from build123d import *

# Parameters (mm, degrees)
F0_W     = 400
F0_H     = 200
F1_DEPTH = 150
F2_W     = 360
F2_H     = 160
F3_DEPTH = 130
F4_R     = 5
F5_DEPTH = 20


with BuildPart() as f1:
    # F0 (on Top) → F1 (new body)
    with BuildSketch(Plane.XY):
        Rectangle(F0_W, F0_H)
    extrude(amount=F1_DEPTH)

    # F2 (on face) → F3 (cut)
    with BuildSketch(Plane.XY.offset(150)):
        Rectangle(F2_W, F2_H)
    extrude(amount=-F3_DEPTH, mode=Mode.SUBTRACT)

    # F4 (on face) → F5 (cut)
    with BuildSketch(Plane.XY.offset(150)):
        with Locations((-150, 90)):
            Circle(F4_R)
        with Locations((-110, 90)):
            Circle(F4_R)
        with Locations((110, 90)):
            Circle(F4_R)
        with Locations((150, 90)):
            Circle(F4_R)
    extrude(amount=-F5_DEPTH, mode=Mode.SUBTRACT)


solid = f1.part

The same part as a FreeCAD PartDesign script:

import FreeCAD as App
import Part
import Sketcher

V = App.Vector


def add_polygon(sketch, points):
    """Adds a closed chain of lines whose ends are joined by coincident constraints."""
    first, n = sketch.GeometryCount, len(points)
    for a, b in zip(points, points[1:] + points[:1]):
        sketch.addGeometry(Part.LineSegment(App.Vector(*a, 0), App.Vector(*b, 0)), False)
    for i in range(n):
        sketch.addConstraint(Sketcher.Constraint("Coincident", first + i, 2, first + (i + 1) % n, 1))

doc = App.newDocument("Part")
body = doc.addObject("PartDesign::Body", "Body")

# Sketch on XY plane
sketch1 = body.newObject("Sketcher::SketchObject", "Sketch")
sketch1.AttachmentSupport = (doc.getObject("XY_Plane"), [""])
sketch1.MapMode = "FlatFace"
add_polygon(sketch1, [(-200, 100), (-200, -100), (200, -100), (200, 100)])  # lines 0-3
sketch1.addConstraint([
    Sketcher.Constraint("Vertical", 0),
    Sketcher.Constraint("Horizontal", 1),
    Sketcher.Constraint("Vertical", 2),
    Sketcher.Constraint("Horizontal", 3),
    Sketcher.Constraint("Symmetric", 0, 2, 2, 2, -1, 1),
    Sketcher.Constraint("DistanceX", 1, 1, 1, 2, 400.0),
    Sketcher.Constraint("DistanceY", 0, 2, 0, 1, 200.0),
])
pad1 = body.newObject("PartDesign::Pad", "Pad")
pad1.Profile = sketch1
pad1.Length = 150

# Sketch on XY plane
sketch2 = body.newObject("Sketcher::SketchObject", "Sketch001")
sketch2.AttachmentSupport = (doc.getObject("XY_Plane"), [""])
sketch2.MapMode = "FlatFace"
sketch2.AttachmentOffset = App.Placement(V(0, 0, 150), App.Rotation())
add_polygon(sketch2, [(-180, 80), (-180, -80), (180, -80), (180, 80)])  # lines 0-3
sketch2.addConstraint([
    Sketcher.Constraint("Vertical", 0),
    Sketcher.Constraint("Horizontal", 1),
    Sketcher.Constraint("Vertical", 2),
    Sketcher.Constraint("Horizontal", 3),
    Sketcher.Constraint("Symmetric", 0, 2, 2, 2, -1, 1),
    Sketcher.Constraint("DistanceX", 1, 1, 1, 2, 360.0),
    Sketcher.Constraint("DistanceY", 0, 2, 0, 1, 160.0),
])
pocket1 = body.newObject("PartDesign::Pocket", "Pocket")
pocket1.Profile = sketch2
pocket1.Length = 130

# Sketch on XY plane
sketch3 = body.newObject("Sketcher::SketchObject", "Sketch002")
sketch3.AttachmentSupport = (doc.getObject("XY_Plane"), [""])
sketch3.MapMode = "FlatFace"
sketch3.AttachmentOffset = App.Placement(V(0, 0, 150), App.Rotation())
sketch3.addGeometry([
    Part.Circle(V(-150, 90, 0), V(0, 0, 1), 5),
    Part.Circle(V(-110, 90, 0), V(0, 0, 1), 5),
    Part.Circle(V(110, 90, 0), V(0, 0, 1), 5),
    Part.Circle(V(150, 90, 0), V(0, 0, 1), 5),
], False)
sketch3.addConstraint([
    Sketcher.Constraint("Equal", 0, 1),
    Sketcher.Constraint("Equal", 1, 2),
    Sketcher.Constraint("Equal", 2, 3),
    Sketcher.Constraint("Symmetric", 1, 3, 2, 3, -2),
    Sketcher.Constraint("Symmetric", 0, 3, 3, 3, -2),
    Sketcher.Constraint("Horizontal", 0, 3, 1, 3),
    Sketcher.Constraint("Diameter", 0, 10.0),
    Sketcher.Constraint("DistanceX", 0, 3, -1, 1, 150.0),
    Sketcher.Constraint("DistanceY", -1, 1, 0, 3, 90.0),
    Sketcher.Constraint("DistanceX", 1, 3, -1, 1, 110.0),
])
pocket2 = body.newObject("PartDesign::Pocket", "Pocket001")
pocket2.Profile = sketch3
pocket2.Length = 20

doc.recompute()
